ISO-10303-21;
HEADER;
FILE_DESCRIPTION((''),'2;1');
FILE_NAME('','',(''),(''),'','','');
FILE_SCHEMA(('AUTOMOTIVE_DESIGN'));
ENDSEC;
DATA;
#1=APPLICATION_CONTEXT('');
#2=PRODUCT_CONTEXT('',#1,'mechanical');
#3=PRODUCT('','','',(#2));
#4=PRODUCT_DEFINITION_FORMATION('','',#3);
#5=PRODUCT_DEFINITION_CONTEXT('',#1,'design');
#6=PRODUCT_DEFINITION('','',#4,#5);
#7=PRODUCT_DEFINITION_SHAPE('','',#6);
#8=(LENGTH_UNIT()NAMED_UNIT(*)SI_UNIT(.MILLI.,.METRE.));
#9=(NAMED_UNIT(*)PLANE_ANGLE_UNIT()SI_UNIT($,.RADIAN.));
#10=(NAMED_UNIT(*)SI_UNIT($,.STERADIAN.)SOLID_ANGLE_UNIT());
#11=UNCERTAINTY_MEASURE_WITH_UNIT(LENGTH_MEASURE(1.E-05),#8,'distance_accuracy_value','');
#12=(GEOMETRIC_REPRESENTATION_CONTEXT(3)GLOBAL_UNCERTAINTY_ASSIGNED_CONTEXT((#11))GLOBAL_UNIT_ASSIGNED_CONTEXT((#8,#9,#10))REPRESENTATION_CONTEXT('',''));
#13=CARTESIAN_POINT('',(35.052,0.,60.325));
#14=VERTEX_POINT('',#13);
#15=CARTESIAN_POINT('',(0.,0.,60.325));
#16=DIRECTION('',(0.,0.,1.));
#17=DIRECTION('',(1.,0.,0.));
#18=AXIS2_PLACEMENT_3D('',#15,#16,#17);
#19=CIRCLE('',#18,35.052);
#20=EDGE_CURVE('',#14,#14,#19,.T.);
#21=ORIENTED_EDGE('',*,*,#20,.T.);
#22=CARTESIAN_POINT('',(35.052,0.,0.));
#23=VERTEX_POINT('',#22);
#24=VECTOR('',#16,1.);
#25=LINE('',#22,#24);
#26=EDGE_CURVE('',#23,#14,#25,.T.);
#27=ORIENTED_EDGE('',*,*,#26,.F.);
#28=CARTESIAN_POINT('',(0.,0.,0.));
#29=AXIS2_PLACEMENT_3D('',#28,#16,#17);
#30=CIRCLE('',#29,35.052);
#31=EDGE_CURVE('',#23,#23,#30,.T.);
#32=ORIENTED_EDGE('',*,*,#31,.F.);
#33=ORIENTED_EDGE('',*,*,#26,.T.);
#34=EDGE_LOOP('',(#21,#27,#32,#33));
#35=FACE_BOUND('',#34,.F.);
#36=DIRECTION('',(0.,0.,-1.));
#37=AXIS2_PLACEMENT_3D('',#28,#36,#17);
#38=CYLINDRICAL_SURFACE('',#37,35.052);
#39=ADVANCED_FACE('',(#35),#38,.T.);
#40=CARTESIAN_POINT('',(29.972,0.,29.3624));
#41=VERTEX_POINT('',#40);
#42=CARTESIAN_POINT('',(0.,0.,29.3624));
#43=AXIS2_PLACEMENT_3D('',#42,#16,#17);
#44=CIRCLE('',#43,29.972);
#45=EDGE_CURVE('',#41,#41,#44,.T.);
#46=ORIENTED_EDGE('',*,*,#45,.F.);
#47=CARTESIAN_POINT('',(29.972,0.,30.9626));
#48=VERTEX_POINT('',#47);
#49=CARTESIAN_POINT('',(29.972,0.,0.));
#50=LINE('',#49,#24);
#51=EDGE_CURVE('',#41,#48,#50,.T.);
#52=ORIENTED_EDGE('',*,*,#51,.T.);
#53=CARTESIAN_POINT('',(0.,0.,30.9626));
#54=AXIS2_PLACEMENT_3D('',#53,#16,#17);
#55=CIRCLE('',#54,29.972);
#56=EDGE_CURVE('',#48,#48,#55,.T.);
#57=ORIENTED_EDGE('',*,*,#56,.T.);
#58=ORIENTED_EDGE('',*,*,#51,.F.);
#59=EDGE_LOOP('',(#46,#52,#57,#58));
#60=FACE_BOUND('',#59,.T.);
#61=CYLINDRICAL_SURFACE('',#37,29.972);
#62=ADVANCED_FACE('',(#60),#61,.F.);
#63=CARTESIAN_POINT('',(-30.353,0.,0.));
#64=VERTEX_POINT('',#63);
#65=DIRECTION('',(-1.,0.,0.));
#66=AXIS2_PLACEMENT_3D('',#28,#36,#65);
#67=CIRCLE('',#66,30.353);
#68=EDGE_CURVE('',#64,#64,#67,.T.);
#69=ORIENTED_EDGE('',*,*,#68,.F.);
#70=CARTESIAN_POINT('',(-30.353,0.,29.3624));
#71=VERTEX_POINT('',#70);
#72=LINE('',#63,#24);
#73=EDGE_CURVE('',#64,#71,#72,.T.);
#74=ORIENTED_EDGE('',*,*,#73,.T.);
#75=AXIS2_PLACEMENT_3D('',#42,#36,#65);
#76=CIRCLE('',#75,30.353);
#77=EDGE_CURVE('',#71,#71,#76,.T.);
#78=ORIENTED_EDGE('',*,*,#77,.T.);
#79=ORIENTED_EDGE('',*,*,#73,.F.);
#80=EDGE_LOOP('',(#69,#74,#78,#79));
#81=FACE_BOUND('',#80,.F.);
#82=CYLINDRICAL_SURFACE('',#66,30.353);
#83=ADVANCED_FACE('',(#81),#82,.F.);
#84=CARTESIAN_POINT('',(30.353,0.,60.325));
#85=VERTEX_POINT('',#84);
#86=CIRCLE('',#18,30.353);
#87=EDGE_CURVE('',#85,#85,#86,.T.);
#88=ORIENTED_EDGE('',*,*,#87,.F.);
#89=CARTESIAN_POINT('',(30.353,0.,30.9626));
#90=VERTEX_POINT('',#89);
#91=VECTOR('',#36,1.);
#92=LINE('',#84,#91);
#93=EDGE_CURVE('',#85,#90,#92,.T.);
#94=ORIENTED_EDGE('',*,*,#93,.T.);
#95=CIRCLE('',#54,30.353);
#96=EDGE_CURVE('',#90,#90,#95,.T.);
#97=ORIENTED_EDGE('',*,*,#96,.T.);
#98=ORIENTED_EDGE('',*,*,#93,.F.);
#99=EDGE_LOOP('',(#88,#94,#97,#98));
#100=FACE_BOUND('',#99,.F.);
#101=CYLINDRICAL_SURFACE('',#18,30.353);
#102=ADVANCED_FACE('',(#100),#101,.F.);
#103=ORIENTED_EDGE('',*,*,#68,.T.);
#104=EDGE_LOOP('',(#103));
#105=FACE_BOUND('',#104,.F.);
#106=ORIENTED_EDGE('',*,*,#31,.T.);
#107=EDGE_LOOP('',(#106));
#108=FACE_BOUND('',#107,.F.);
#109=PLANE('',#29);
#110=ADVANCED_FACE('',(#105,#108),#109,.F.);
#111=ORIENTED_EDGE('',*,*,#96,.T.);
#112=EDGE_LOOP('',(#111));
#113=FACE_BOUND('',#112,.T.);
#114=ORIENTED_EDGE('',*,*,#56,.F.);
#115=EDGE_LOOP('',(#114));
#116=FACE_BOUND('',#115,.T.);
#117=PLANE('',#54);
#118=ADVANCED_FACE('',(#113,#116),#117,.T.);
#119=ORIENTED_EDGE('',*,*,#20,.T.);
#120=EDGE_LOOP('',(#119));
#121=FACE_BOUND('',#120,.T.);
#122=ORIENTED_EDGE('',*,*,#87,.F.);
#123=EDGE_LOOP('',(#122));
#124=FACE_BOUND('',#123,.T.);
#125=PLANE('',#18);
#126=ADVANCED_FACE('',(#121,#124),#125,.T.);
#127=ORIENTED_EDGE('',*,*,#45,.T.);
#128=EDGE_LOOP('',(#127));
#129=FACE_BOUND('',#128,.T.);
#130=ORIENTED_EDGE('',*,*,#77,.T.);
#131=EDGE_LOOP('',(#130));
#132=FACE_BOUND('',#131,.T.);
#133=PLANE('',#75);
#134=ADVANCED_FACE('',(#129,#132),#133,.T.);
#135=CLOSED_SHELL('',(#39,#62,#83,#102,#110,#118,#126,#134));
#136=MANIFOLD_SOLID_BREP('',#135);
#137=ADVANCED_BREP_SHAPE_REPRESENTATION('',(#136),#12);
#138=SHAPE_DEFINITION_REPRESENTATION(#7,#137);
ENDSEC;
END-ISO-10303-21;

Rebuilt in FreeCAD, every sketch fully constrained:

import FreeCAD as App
import Part
import Sketcher
from FreeCAD import Vector
Q = App.Units.Quantity

doc = App.newDocument("Part")
body = doc.addObject("PartDesign::Body", "Body")

sketch1 = body.newObject("Sketcher::SketchObject", "Sketch")
sketch1.AttachmentSupport = (doc.getObject("XY_Plane"), [""])
sketch1.MapMode = "FlatFace"
sketch1.addGeometry(Part.Circle(Vector(0, 0, 0), Vector(0, 0, 1), 35.052), False)
sketch1.addGeometry(Part.Circle(Vector(0, 0, 0), Vector(0, 0, 1), 29.972), False)
sketch1.addConstraint(Sketcher.Constraint("Coincident", 0, 3, -1, 1))
sketch1.addConstraint(Sketcher.Constraint("Coincident", 1, 3, -1, 1))
sketch1.addConstraint(Sketcher.Constraint("Diameter", 1, Q("2.36 in")))
sketch1.addConstraint(Sketcher.Constraint("Diameter", 0, Q("2.76 in")))
pad1 = body.newObject("PartDesign::Pad", "Pad")
pad1.Profile = sketch1
pad1.Length = Q("2.375 in")

sketch2 = body.newObject("Sketcher::SketchObject", "Sketch001")
sketch2.AttachmentSupport = (doc.getObject("XY_Plane"), [""])
sketch2.MapMode = "FlatFace"
sketch2.AttachmentOffset = App.Placement(Vector(0, 0, 2.375 * 25.4), App.Rotation())
sketch2.addGeometry(Part.Circle(Vector(0, 0, 0), Vector(0, 0, 1), 30.353), False)
sketch2.addGeometry(Part.Circle(Vector(0, 0, 0), Vector(0, 0, 1), 29.972), False)
sketch2.addConstraint(Sketcher.Constraint("Coincident", 0, 3, -1, 1))
sketch2.addConstraint(Sketcher.Constraint("Coincident", 1, 3, -1, 1))
sketch2.addConstraint(Sketcher.Constraint("Diameter", 0, Q("2.39 in")))
sketch2.addConstraint(Sketcher.Constraint("Diameter", 1, Q("2.36 in")))
pocket1 = body.newObject("PartDesign::Pocket", "Pocket")
pocket1.Profile = sketch2
pocket1.Length = Q("1.156 in")

sketch3 = body.newObject("Sketcher::SketchObject", "Sketch002")
sketch3.AttachmentSupport = (doc.getObject("XY_Plane"), [""])
sketch3.MapMode = "FlatFace"
sketch3.addGeometry(Part.Circle(Vector(0, 0, 0), Vector(0, 0, 1), 30.353), False)
sketch3.addGeometry(Part.Circle(Vector(0, 0, 0), Vector(0, 0, 1), 29.972), False)
sketch3.addConstraint(Sketcher.Constraint("Coincident", 0, 3, -1, 1))
sketch3.addConstraint(Sketcher.Constraint("Coincident", 1, 3, -1, 1))
sketch3.addConstraint(Sketcher.Constraint("Diameter", 0, Q("2.39 in")))
sketch3.addConstraint(Sketcher.Constraint("Diameter", 1, Q("2.36 in")))
pocket2 = body.newObject("PartDesign::Pocket", "Pocket001")
pocket2.Profile = sketch3
pocket2.Length = Q("1.156 in")
pocket2.Reversed = True

doc.recompute()
